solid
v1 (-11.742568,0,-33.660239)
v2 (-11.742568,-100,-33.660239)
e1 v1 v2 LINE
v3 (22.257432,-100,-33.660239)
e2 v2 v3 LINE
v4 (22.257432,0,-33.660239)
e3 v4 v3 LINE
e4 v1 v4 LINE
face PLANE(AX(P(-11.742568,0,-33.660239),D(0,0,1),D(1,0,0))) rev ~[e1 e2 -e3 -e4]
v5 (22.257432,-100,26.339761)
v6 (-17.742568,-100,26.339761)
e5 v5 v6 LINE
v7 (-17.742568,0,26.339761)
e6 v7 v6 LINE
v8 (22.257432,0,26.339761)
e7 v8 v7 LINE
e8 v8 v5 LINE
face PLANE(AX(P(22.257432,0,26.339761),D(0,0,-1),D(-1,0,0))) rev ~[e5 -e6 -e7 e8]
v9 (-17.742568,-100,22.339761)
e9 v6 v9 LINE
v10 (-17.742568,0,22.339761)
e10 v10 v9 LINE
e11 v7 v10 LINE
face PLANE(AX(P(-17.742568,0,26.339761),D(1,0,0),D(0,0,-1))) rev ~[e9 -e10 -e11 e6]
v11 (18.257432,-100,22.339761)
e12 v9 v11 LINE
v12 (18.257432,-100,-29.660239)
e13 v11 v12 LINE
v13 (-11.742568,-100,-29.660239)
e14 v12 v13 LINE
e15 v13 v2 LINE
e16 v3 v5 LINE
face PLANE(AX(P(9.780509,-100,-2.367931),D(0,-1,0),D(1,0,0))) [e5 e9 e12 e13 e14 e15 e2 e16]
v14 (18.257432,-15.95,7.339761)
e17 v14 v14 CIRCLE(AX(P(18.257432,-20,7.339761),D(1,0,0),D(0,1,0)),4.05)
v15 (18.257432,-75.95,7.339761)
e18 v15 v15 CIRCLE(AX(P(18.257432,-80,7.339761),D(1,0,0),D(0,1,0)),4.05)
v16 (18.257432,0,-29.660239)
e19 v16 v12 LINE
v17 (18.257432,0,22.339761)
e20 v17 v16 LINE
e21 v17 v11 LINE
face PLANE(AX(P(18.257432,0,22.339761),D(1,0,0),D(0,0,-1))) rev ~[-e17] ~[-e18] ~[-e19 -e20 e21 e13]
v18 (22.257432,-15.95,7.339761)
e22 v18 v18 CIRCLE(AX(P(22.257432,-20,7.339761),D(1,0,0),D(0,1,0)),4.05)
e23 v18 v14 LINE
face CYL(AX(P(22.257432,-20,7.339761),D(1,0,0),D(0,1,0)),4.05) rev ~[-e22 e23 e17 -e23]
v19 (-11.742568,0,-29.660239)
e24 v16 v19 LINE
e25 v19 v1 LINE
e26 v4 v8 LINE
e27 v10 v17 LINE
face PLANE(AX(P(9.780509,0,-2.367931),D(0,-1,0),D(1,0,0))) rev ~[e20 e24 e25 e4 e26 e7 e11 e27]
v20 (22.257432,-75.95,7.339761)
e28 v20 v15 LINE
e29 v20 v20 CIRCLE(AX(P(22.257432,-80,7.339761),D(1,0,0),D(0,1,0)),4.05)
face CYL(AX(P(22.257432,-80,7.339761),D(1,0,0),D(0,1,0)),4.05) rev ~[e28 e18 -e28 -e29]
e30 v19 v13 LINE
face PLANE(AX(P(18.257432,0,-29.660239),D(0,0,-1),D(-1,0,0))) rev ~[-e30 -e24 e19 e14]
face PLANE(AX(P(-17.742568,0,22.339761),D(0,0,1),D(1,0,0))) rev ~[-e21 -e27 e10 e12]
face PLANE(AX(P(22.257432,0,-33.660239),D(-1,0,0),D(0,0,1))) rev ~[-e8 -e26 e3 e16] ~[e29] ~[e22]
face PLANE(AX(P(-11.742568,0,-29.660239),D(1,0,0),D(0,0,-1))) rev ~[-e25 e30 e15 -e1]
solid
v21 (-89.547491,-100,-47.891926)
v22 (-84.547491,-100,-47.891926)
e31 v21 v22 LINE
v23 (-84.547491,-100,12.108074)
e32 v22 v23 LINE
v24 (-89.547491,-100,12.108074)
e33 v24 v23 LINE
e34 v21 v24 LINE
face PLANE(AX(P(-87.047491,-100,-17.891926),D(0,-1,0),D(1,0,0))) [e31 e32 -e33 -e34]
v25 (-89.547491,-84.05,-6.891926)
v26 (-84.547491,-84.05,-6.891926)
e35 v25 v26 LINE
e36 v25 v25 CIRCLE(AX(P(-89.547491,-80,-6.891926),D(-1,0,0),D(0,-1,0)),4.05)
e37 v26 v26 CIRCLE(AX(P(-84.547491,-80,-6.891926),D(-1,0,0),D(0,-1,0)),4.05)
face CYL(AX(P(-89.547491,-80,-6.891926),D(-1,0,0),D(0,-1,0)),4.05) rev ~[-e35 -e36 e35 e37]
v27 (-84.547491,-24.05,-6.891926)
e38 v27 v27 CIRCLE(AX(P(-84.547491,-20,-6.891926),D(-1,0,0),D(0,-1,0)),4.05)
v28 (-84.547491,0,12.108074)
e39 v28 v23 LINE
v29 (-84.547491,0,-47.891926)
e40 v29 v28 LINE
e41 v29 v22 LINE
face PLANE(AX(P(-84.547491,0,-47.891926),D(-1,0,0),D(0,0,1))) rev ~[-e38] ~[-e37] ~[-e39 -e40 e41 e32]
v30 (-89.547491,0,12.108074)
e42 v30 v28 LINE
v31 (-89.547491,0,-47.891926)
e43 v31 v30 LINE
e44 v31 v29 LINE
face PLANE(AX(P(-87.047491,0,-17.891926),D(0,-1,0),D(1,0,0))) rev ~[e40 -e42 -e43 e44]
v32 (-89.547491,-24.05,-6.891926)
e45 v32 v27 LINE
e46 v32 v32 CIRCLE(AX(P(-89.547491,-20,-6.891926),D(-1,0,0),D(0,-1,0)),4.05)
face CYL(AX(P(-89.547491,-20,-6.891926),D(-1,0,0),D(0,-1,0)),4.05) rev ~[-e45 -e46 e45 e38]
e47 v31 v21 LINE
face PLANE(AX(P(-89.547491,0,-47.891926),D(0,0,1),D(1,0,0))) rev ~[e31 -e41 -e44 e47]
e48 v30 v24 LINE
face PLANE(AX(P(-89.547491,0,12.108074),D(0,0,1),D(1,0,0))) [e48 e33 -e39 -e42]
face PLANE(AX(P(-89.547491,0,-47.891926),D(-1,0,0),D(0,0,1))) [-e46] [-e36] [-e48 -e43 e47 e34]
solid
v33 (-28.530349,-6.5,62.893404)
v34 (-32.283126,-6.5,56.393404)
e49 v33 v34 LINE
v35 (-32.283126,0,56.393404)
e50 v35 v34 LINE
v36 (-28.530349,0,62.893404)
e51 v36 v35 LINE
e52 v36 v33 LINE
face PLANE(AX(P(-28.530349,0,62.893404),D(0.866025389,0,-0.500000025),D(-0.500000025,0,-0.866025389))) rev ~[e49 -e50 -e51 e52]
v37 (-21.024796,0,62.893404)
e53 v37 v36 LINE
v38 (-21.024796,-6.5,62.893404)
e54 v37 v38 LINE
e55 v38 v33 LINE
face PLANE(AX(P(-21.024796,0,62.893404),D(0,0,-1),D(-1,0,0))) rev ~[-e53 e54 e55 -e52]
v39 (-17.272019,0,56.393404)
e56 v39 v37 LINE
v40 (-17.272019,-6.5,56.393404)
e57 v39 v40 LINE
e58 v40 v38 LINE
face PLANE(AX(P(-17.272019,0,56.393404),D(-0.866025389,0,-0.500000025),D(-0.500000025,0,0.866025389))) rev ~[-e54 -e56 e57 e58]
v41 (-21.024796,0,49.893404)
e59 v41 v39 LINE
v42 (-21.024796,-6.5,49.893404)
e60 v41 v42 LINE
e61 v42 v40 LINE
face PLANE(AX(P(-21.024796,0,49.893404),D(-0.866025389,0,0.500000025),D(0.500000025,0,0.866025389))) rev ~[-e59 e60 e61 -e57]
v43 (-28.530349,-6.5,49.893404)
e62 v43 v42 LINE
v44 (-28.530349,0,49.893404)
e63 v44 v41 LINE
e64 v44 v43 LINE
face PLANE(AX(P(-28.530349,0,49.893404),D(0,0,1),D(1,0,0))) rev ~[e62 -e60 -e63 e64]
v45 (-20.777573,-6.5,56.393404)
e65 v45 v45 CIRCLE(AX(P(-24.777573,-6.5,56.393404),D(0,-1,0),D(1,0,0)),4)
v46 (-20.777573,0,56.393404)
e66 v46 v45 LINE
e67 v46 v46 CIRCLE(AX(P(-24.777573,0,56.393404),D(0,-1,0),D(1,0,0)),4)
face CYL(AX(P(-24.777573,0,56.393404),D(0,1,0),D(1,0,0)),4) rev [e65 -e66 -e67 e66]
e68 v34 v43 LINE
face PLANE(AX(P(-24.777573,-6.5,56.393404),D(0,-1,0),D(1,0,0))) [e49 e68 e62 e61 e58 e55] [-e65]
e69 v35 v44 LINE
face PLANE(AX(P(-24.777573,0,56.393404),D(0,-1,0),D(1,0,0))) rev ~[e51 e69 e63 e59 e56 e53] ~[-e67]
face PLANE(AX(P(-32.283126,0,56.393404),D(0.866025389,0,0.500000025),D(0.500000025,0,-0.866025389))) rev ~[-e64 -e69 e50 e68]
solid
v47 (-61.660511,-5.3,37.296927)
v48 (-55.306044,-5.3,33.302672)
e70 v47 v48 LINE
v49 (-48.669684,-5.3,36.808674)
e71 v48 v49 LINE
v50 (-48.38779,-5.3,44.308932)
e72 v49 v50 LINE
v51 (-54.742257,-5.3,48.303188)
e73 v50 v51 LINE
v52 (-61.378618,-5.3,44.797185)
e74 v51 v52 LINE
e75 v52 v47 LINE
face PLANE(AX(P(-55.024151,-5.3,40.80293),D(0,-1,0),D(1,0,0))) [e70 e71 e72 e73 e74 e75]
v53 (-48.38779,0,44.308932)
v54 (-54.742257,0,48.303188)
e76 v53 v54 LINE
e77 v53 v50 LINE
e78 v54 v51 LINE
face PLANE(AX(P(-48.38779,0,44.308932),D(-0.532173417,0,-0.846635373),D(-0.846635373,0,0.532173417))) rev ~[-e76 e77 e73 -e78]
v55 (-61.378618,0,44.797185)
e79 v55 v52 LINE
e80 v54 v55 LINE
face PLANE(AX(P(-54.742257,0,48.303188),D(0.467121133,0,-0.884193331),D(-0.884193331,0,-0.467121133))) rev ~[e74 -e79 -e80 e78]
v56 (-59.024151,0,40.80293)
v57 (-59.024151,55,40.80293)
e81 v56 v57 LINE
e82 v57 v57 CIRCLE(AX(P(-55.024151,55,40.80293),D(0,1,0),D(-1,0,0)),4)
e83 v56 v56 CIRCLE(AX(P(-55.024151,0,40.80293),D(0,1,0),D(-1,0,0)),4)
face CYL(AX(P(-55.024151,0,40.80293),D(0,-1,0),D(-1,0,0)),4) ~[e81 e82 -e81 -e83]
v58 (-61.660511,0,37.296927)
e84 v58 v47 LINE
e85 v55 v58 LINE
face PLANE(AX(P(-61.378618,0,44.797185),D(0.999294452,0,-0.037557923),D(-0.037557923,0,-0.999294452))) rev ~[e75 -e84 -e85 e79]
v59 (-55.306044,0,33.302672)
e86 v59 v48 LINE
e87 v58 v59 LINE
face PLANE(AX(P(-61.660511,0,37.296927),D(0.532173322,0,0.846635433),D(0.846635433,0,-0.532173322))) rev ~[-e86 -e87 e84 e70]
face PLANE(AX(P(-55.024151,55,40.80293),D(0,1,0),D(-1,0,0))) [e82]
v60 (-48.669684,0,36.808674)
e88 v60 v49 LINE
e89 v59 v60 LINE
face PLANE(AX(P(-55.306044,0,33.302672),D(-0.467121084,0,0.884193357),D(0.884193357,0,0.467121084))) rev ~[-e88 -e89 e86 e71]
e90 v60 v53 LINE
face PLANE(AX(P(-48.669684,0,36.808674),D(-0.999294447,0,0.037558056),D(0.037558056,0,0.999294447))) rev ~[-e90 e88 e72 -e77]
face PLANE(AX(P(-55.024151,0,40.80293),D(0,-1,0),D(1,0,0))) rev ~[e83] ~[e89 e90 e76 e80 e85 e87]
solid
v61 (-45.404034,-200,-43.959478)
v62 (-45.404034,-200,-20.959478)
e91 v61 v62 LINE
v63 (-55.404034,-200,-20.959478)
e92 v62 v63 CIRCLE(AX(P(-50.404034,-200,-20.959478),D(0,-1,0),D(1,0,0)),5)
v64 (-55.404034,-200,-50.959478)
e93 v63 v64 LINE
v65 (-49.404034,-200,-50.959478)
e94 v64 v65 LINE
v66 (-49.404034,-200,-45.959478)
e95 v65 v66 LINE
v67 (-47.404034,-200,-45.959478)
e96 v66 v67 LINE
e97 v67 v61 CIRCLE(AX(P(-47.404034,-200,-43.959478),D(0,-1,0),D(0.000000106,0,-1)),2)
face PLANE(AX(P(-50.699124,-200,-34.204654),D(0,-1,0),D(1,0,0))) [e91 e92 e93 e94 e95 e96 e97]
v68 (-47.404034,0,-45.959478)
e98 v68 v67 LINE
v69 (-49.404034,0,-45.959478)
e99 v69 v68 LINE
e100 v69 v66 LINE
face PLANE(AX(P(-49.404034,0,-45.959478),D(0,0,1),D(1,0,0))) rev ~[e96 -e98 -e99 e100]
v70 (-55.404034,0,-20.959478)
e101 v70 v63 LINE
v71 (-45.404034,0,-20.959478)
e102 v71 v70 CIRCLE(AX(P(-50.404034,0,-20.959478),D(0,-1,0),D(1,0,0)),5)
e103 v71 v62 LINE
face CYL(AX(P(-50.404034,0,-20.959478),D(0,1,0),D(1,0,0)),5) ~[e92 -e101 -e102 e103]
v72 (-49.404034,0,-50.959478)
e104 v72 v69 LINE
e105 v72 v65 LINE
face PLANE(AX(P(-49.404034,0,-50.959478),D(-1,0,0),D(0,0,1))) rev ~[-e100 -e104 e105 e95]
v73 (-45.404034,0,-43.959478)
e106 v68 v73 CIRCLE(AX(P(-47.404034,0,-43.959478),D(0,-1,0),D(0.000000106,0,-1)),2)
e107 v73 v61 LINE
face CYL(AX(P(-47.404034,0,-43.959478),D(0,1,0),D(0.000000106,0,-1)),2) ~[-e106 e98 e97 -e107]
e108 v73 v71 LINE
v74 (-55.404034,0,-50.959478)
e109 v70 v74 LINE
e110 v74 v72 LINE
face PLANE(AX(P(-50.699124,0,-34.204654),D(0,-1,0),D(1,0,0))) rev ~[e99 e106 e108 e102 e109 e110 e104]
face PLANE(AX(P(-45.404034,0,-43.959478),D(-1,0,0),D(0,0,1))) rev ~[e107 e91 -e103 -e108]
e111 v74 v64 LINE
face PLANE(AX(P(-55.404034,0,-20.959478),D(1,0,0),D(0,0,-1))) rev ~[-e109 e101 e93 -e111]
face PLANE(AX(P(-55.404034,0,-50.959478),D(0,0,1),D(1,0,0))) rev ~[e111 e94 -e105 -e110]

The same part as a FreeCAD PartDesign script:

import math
import FreeCAD as App
import Part
import Sketcher

V = App.Vector
Q = App.Units.Quantity


def add_polygon(sketch, points):
    """Adds a closed chain of lines whose ends are joined by coincident constraints."""
    first, n = sketch.GeometryCount, len(points)
    for a, b in zip(points, points[1:] + points[:1]):
        sketch.addGeometry(Part.LineSegment(App.Vector(*a, 0), App.Vector(*b, 0)), False)
    for i in range(n):
        sketch.addConstraint(Sketcher.Constraint("Coincident", first + i, 2, first + (i + 1) % n, 1))

doc = App.newDocument("Part")
params = doc.addObject("Spreadsheet::Sheet", "Params")
for row, (alias, value) in enumerate([
    ("sketch1_width", "5 mm"),
    ("sketch1_height", "60 mm"),
    ("pad1_length", "100 mm"),
    ("sketch2_diameter", "8.1 mm"),
    ("pocket1_length", "5 mm"),
    ("sketch3_width", "40 mm"),
    ("sketch3_width2", "36 mm"),
    ("sketch3_width3", "30 mm"),
    ("sketch3_height", "4 mm"),
    ("sketch3_height2", "52 mm"),
    ("pad2_length", "100 mm"),
    ("sketch4_diameter", "8.1 mm"),
    ("pocket2_length", "4 mm"),
    ("sketch5_radius", "5 mm"),
    ("sketch5_radius2", "2 mm"),
    ("sketch5_width", "6 mm"),
    ("sketch5_height", "23 mm"),
    ("sketch5_height2", "30 mm"),
    ("pad3_length", "200 mm"),
    ("pad4_length", "5.3 mm"),
    ("sketch7_diameter", "8 mm"),
    ("pad5_length", "55 mm"),
    ("sketch8_diameter", "8 mm"),
    ("pad6_length", "6.5 mm"),
], start=1):
    params.set(f"A{row}", alias)
    params.set(f"B{row}", "=" + value)
    params.setAlias(f"B{row}", alias)

body = doc.addObject("PartDesign::Body", "Body")

# Sketch on XZ plane
sketch1 = body.newObject("Sketcher::SketchObject", "Sketch")
sketch1.AttachmentSupport = (doc.getObject("XZ_Plane"), [""])
sketch1.MapMode = "FlatFace"
add_polygon(sketch1, [(-89.547491, 12.108074), (-89.547491, -47.891926), (-84.547491, -47.891926), (-84.547491, 12.108074)])  # lines 0-3
sketch1.addConstraint([
    Sketcher.Constraint("Vertical", 0),
    Sketcher.Constraint("Horizontal", 1),
    Sketcher.Constraint("Vertical", 2),
    Sketcher.Constraint("Horizontal", 3),
    Sketcher.Constraint("DistanceX", 1, 1, 1, 2, 5.0),
    Sketcher.Constraint("DistanceY", 0, 2, 0, 1, 60.0),
    Sketcher.Constraint("DistanceX", 0, 2, -1, 1, 89.547491),
    Sketcher.Constraint("DistanceY", 0, 2, -1, 1, 47.891926),
])
sketch1.setExpression("Constraints[8]", "Params.sketch1_width")
sketch1.setExpression("Constraints[9]", "Params.sketch1_height")
pad1 = body.newObject("PartDesign::Pad", "Pad")
pad1.Profile = sketch1
pad1.setExpression("Length", "Params.pad1_length")

# Sketch on YZ plane
sketch2 = body.newObject("Sketcher::SketchObject", "Sketch001")
sketch2.AttachmentSupport = (doc.getObject("YZ_Plane"), [""])
sketch2.MapMode = "FlatFace"
sketch2.AttachmentOffset = App.Placement(V(0, 0, -89.547491), App.Rotation())
sketch2.addGeometry([
    Part.Circle(V(-20, -6.891926, 0), V(0, 0, 1), 4.05),
    Part.Circle(V(-80, -6.891926, 0), V(0, 0, 1), 4.05),
], False)
sketch2.addConstraint([
    Sketcher.Constraint("Equal", 0, 1),
    Sketcher.Constraint("Horizontal", 0, 3, 1, 3),
    Sketcher.Constraint("Diameter", 0, 8.1),
    Sketcher.Constraint("DistanceX", 0, 3, -1, 1, 20.0),
    Sketcher.Constraint("DistanceX", 1, 3, -1, 1, 80.0),
    Sketcher.Constraint("DistanceY", 0, 3, -1, 1, 6.891926),
])
sketch2.setExpression("Constraints[2]", "Params.sketch2_diameter")
pocket1 = body.newObject("PartDesign::Pocket", "Pocket")
pocket1.Profile = sketch2
pocket1.setExpression("Length", "Params.pocket1_length")
pocket1.Reversed = True
body2 = doc.addObject("PartDesign::Body", "Body001")

# Sketch on XZ plane
sketch3 = body2.newObject("Sketcher::SketchObject", "Sketch002")
sketch3.AttachmentSupport = (doc.getObject("XZ_Plane001"), [""])
sketch3.MapMode = "FlatFace"
add_polygon(sketch3, [(22.257432, 26.339761), (-17.742568, 26.339761), (-17.742568, 22.339761), (18.257432, 22.339761), (18.257432, -29.660239), (-11.742568, -29.660239), (-11.742568, -33.660239), (22.257432, -33.660239)])  # lines 0-7
sketch3.addConstraint([
    Sketcher.Constraint("Horizontal", 0),
    Sketcher.Constraint("Vertical", 1),
    Sketcher.Constraint("Horizontal", 2),
    Sketcher.Constraint("Vertical", 3),
    Sketcher.Constraint("Horizontal", 4),
    Sketcher.Constraint("Vertical", 5),
    Sketcher.Constraint("Horizontal", 6),
    Sketcher.Constraint("Vertical", 7),
    Sketcher.Constraint("Equal", 1, 5),
    Sketcher.Constraint("DistanceX", 0, 2, 0, 1, 40.0),
    Sketcher.Constraint("DistanceX", 2, 1, 2, 2, 36.0),
    Sketcher.Constraint("DistanceX", 4, 2, 4, 1, 30.0),
    Sketcher.Constraint("DistanceY", 1, 2, 1, 1, 4.0),
    Sketcher.Constraint("DistanceY", 3, 2, 3, 1, 52.0),
    Sketcher.Constraint("DistanceY", -1, 1, 0, 2, 26.339761),
    Sketcher.Constraint("DistanceX", 0, 2, -1, 1, 17.742568),
])
sketch3.setExpression("Constraints[17]", "Params.sketch3_width")
sketch3.setExpression("Constraints[18]", "Params.sketch3_width2")
sketch3.setExpression("Constraints[19]", "Params.sketch3_width3")
sketch3.setExpression("Constraints[20]", "Params.sketch3_height")
sketch3.setExpression("Constraints[21]", "Params.sketch3_height2")
pad2 = body2.newObject("PartDesign::Pad", "Pad001")
pad2.Profile = sketch3
pad2.setExpression("Length", "Params.pad2_length")

# Sketch on YZ plane
sketch4 = body2.newObject("Sketcher::SketchObject", "Sketch003")
sketch4.AttachmentSupport = (doc.getObject("YZ_Plane001"), [""])
sketch4.MapMode = "FlatFace"
sketch4.AttachmentOffset = App.Placement(V(0, 0, 22.257432), App.Rotation())
sketch4.addGeometry([
    Part.Circle(V(-20, 7.339761, 0), V(0, 0, 1), 4.05),
    Part.Circle(V(-80, 7.339761, 0), V(0, 0, 1), 4.05),
], False)
sketch4.addConstraint([
    Sketcher.Constraint("Equal", 0, 1),
    Sketcher.Constraint("Horizontal", 0, 3, 1, 3),
    Sketcher.Constraint("Diameter", 0, 8.1),
    Sketcher.Constraint("DistanceX", 0, 3, -1, 1, 20.0),
    Sketcher.Constraint("DistanceX", 1, 3, -1, 1, 80.0),
    Sketcher.Constraint("DistanceY", -1, 1, 0, 3, 7.339761),
])
sketch4.setExpression("Constraints[2]", "Params.sketch4_diameter")
pocket2 = body2.newObject("PartDesign::Pocket", "Pocket001")
pocket2.Profile = sketch4
pocket2.setExpression("Length", "Params.pocket2_length")
body3 = doc.addObject("PartDesign::Body", "Body002")

# Sketch on XZ plane
sketch5 = body3.newObject("Sketcher::SketchObject", "Sketch004")
sketch5.AttachmentSupport = (doc.getObject("XZ_Plane002"), [""])
sketch5.MapMode = "FlatFace"
sketch5.addGeometry([
    Part.LineSegment(V(-45.404034, -43.959478, 0), V(-45.404034, -20.959478, 0)),  # 0
    Part.ArcOfCircle(Part.Circle(V(-50.404034, -20.959478, 0), V(0, 0, 1), 5), math.radians(0), math.radians(180)),  # 1
    Part.LineSegment(V(-55.404034, -20.959478, 0), V(-55.404034, -50.959478, 0)),  # 2
    Part.LineSegment(V(-55.404034, -50.959478, 0), V(-49.404034, -50.959478, 0)),  # 3
    Part.LineSegment(V(-49.404034, -50.959478, 0), V(-49.404034, -45.959478, 0)),  # 4
    Part.LineSegment(V(-49.404034, -45.959478, 0), V(-47.404034, -45.959478, 0)),  # 5
    Part.ArcOfCircle(Part.Circle(V(-47.404034, -43.959478, 0), V(0, 0, 1), 2), math.radians(-89.999994), math.radians(-0.000006)),  # 6
], False)
sketch5.addConstraint([
    Sketcher.Constraint("Tangent", 0, 2, 1, 1),
    Sketcher.Constraint("Tangent", 1, 2, 2, 1),
    Sketcher.Constraint("Coincident", 2, 2, 3, 1),
    Sketcher.Constraint("Coincident", 3, 2, 4, 1),
    Sketcher.Constraint("Coincident", 4, 2, 5, 1),
    Sketcher.Constraint("Tangent", 5, 2, 6, 1),
    Sketcher.Constraint("Tangent", 6, 2, 0, 1),
    Sketcher.Constraint("Vertical", 0),
    Sketcher.Constraint("Vertical", 2),
    Sketcher.Constraint("Horizontal", 3),
    Sketcher.Constraint("Vertical", 4),
    Sketcher.Constraint("Horizontal", 5),
    Sketcher.Constraint("Radius", 1, 5.0),
    Sketcher.Constraint("Radius", 6, 2.0),
    Sketcher.Constraint("DistanceX", 3, 1, 3, 2, 6.0),
    Sketcher.Constraint("DistanceY", 0, 1, 0, 2, 23.0),
    Sketcher.Constraint("DistanceY", 2, 2, 2, 1, 30.0),
    Sketcher.Constraint("DistanceY", 1, 3, -1, 1, 20.959478),
    Sketcher.Constraint("DistanceX", 1, 3, -1, 1, 50.404034),
])
sketch5.setExpression("Constraints[12]", "Params.sketch5_radius")
sketch5.setExpression("Constraints[13]", "Params.sketch5_radius2")
sketch5.setExpression("Constraints[14]", "Params.sketch5_width")
sketch5.setExpression("Constraints[15]", "Params.sketch5_height")
sketch5.setExpression("Constraints[16]", "Params.sketch5_height2")
pad3 = body3.newObject("PartDesign::Pad", "Pad002")
pad3.Profile = sketch5
pad3.setExpression("Length", "Params.pad3_length")
body4 = doc.addObject("PartDesign::Body", "Body003")

# Sketch on XZ plane
sketch6 = body4.newObject("Sketcher::SketchObject", "Sketch005")
sketch6.AttachmentSupport = (doc.getObject("XZ_Plane003"), [""])
sketch6.MapMode = "FlatFace"
add_polygon(sketch6, [(-55.306044, 33.302672), (-48.669684, 36.808674), (-48.38779, 44.308932), (-54.742257, 48.303188), (-61.378618, 44.797185), (-61.660511, 37.296927)])  # lines 0-5
sketch6.addConstraint([
    Sketcher.Constraint("Parallel", 0, 3),
    Sketcher.Constraint("Parallel", 1, 4),
    Sketcher.Constraint("Parallel", 2, 5),
    Sketcher.Constraint("Equal", 0, 1),
    Sketcher.Constraint("Equal", 1, 2),
    Sketcher.Constraint("Equal", 2, 3),
    Sketcher.Constraint("DistanceX", 1, 2, -1, 1, 48.38779),
    Sketcher.Constraint("DistanceX", 3, 2, -1, 1, 61.378618),
    Sketcher.Constraint("DistanceX", 4, 2, -1, 1, 61.660511),
    Sketcher.Constraint("DistanceX", 3, 2, 2, 2, 6.636361),
    Sketcher.Constraint("DistanceY", 0, 2, 3, 2, 7.988511),
    Sketcher.Constraint("DistanceY", -1, 1, 0, 2, 36.808674),
])
pad4 = body4.newObject("PartDesign::Pad", "Pad003")
pad4.Profile = sketch6
pad4.setExpression("Length", "Params.pad4_length")

# Sketch on XZ plane
sketch7 = body4.newObject("Sketcher::SketchObject", "Sketch006")
sketch7.AttachmentSupport = (doc.getObject("XZ_Plane003"), [""])
sketch7.MapMode = "FlatFace"
sketch7.addGeometry(Part.Circle(V(-55.024151, 40.80293, 0), V(0, 0, 1), 4), False)
sketch7.addConstraint([
    Sketcher.Constraint("Diameter", 0, 8.0),
    Sketcher.Constraint("DistanceX", 0, 3, -1, 1, 55.024151),
    Sketcher.Constraint("DistanceY", -1, 1, 0, 3, 40.80293),
])
sketch7.setExpression("Constraints[0]", "Params.sketch7_diameter")
pad5 = body4.newObject("PartDesign::Pad", "Pad004")
pad5.Profile = sketch7
pad5.setExpression("Length", "Params.pad5_length")
pad5.Reversed = True
body5 = doc.addObject("PartDesign::Body", "Body004")

# Sketch on XZ plane
sketch8 = body5.newObject("Sketcher::SketchObject", "Sketch007")
sketch8.AttachmentSupport = (doc.getObject("XZ_Plane004"), [""])
sketch8.MapMode = "FlatFace"
add_polygon(sketch8, [(-28.530349, 49.893404), (-21.024796, 49.893404), (-17.272019, 56.393404), (-21.024796, 62.893404), (-28.530349, 62.893404), (-32.283126, 56.393404)])  # lines 0-5
sketch8.addGeometry(Part.Circle(V(-24.777573, 56.393404, 0), V(0, 0, 1), 4), False)  # 6
sketch8.addConstraint([
    Sketcher.Constraint("Horizontal", 0),
    Sketcher.Constraint("Horizontal", 3),
    Sketcher.Constraint("Parallel", 1, 4),
    Sketcher.Constraint("Parallel", 2, 5),
    Sketcher.Constraint("Horizontal", 6, 3, 1, 2),
    Sketcher.Constraint("Horizontal", 1, 2, 4, 2),
    Sketcher.Constraint("Vertical", 0, 2, 2, 2),
    Sketcher.Constraint("Vertical", 3, 2, 5, 2),
    Sketcher.Constraint("Diameter", 6, 8.0),
    Sketcher.Constraint("Angle", 1, Q("59.999998 deg")),
    Sketcher.Constraint("DistanceY", 0, 2, 2, 2, 13.0),
    Sketcher.Constraint("DistanceX", 0, 1, 0, 2, 7.505553),
    Sketcher.Constraint("DistanceX", 1, 2, -1, 1, 17.272019),
    Sketcher.Constraint("DistanceX", 6, 3, -1, 1, 24.777573),
    Sketcher.Constraint("DistanceY", -1, 1, 6, 3, 56.393404),
])
sketch8.setExpression("Constraints[14]", "Params.sketch8_diameter")
pad6 = body5.newObject("PartDesign::Pad", "Pad005")
pad6.Profile = sketch8
pad6.setExpression("Length", "Params.pad6_length")

doc.recompute()
